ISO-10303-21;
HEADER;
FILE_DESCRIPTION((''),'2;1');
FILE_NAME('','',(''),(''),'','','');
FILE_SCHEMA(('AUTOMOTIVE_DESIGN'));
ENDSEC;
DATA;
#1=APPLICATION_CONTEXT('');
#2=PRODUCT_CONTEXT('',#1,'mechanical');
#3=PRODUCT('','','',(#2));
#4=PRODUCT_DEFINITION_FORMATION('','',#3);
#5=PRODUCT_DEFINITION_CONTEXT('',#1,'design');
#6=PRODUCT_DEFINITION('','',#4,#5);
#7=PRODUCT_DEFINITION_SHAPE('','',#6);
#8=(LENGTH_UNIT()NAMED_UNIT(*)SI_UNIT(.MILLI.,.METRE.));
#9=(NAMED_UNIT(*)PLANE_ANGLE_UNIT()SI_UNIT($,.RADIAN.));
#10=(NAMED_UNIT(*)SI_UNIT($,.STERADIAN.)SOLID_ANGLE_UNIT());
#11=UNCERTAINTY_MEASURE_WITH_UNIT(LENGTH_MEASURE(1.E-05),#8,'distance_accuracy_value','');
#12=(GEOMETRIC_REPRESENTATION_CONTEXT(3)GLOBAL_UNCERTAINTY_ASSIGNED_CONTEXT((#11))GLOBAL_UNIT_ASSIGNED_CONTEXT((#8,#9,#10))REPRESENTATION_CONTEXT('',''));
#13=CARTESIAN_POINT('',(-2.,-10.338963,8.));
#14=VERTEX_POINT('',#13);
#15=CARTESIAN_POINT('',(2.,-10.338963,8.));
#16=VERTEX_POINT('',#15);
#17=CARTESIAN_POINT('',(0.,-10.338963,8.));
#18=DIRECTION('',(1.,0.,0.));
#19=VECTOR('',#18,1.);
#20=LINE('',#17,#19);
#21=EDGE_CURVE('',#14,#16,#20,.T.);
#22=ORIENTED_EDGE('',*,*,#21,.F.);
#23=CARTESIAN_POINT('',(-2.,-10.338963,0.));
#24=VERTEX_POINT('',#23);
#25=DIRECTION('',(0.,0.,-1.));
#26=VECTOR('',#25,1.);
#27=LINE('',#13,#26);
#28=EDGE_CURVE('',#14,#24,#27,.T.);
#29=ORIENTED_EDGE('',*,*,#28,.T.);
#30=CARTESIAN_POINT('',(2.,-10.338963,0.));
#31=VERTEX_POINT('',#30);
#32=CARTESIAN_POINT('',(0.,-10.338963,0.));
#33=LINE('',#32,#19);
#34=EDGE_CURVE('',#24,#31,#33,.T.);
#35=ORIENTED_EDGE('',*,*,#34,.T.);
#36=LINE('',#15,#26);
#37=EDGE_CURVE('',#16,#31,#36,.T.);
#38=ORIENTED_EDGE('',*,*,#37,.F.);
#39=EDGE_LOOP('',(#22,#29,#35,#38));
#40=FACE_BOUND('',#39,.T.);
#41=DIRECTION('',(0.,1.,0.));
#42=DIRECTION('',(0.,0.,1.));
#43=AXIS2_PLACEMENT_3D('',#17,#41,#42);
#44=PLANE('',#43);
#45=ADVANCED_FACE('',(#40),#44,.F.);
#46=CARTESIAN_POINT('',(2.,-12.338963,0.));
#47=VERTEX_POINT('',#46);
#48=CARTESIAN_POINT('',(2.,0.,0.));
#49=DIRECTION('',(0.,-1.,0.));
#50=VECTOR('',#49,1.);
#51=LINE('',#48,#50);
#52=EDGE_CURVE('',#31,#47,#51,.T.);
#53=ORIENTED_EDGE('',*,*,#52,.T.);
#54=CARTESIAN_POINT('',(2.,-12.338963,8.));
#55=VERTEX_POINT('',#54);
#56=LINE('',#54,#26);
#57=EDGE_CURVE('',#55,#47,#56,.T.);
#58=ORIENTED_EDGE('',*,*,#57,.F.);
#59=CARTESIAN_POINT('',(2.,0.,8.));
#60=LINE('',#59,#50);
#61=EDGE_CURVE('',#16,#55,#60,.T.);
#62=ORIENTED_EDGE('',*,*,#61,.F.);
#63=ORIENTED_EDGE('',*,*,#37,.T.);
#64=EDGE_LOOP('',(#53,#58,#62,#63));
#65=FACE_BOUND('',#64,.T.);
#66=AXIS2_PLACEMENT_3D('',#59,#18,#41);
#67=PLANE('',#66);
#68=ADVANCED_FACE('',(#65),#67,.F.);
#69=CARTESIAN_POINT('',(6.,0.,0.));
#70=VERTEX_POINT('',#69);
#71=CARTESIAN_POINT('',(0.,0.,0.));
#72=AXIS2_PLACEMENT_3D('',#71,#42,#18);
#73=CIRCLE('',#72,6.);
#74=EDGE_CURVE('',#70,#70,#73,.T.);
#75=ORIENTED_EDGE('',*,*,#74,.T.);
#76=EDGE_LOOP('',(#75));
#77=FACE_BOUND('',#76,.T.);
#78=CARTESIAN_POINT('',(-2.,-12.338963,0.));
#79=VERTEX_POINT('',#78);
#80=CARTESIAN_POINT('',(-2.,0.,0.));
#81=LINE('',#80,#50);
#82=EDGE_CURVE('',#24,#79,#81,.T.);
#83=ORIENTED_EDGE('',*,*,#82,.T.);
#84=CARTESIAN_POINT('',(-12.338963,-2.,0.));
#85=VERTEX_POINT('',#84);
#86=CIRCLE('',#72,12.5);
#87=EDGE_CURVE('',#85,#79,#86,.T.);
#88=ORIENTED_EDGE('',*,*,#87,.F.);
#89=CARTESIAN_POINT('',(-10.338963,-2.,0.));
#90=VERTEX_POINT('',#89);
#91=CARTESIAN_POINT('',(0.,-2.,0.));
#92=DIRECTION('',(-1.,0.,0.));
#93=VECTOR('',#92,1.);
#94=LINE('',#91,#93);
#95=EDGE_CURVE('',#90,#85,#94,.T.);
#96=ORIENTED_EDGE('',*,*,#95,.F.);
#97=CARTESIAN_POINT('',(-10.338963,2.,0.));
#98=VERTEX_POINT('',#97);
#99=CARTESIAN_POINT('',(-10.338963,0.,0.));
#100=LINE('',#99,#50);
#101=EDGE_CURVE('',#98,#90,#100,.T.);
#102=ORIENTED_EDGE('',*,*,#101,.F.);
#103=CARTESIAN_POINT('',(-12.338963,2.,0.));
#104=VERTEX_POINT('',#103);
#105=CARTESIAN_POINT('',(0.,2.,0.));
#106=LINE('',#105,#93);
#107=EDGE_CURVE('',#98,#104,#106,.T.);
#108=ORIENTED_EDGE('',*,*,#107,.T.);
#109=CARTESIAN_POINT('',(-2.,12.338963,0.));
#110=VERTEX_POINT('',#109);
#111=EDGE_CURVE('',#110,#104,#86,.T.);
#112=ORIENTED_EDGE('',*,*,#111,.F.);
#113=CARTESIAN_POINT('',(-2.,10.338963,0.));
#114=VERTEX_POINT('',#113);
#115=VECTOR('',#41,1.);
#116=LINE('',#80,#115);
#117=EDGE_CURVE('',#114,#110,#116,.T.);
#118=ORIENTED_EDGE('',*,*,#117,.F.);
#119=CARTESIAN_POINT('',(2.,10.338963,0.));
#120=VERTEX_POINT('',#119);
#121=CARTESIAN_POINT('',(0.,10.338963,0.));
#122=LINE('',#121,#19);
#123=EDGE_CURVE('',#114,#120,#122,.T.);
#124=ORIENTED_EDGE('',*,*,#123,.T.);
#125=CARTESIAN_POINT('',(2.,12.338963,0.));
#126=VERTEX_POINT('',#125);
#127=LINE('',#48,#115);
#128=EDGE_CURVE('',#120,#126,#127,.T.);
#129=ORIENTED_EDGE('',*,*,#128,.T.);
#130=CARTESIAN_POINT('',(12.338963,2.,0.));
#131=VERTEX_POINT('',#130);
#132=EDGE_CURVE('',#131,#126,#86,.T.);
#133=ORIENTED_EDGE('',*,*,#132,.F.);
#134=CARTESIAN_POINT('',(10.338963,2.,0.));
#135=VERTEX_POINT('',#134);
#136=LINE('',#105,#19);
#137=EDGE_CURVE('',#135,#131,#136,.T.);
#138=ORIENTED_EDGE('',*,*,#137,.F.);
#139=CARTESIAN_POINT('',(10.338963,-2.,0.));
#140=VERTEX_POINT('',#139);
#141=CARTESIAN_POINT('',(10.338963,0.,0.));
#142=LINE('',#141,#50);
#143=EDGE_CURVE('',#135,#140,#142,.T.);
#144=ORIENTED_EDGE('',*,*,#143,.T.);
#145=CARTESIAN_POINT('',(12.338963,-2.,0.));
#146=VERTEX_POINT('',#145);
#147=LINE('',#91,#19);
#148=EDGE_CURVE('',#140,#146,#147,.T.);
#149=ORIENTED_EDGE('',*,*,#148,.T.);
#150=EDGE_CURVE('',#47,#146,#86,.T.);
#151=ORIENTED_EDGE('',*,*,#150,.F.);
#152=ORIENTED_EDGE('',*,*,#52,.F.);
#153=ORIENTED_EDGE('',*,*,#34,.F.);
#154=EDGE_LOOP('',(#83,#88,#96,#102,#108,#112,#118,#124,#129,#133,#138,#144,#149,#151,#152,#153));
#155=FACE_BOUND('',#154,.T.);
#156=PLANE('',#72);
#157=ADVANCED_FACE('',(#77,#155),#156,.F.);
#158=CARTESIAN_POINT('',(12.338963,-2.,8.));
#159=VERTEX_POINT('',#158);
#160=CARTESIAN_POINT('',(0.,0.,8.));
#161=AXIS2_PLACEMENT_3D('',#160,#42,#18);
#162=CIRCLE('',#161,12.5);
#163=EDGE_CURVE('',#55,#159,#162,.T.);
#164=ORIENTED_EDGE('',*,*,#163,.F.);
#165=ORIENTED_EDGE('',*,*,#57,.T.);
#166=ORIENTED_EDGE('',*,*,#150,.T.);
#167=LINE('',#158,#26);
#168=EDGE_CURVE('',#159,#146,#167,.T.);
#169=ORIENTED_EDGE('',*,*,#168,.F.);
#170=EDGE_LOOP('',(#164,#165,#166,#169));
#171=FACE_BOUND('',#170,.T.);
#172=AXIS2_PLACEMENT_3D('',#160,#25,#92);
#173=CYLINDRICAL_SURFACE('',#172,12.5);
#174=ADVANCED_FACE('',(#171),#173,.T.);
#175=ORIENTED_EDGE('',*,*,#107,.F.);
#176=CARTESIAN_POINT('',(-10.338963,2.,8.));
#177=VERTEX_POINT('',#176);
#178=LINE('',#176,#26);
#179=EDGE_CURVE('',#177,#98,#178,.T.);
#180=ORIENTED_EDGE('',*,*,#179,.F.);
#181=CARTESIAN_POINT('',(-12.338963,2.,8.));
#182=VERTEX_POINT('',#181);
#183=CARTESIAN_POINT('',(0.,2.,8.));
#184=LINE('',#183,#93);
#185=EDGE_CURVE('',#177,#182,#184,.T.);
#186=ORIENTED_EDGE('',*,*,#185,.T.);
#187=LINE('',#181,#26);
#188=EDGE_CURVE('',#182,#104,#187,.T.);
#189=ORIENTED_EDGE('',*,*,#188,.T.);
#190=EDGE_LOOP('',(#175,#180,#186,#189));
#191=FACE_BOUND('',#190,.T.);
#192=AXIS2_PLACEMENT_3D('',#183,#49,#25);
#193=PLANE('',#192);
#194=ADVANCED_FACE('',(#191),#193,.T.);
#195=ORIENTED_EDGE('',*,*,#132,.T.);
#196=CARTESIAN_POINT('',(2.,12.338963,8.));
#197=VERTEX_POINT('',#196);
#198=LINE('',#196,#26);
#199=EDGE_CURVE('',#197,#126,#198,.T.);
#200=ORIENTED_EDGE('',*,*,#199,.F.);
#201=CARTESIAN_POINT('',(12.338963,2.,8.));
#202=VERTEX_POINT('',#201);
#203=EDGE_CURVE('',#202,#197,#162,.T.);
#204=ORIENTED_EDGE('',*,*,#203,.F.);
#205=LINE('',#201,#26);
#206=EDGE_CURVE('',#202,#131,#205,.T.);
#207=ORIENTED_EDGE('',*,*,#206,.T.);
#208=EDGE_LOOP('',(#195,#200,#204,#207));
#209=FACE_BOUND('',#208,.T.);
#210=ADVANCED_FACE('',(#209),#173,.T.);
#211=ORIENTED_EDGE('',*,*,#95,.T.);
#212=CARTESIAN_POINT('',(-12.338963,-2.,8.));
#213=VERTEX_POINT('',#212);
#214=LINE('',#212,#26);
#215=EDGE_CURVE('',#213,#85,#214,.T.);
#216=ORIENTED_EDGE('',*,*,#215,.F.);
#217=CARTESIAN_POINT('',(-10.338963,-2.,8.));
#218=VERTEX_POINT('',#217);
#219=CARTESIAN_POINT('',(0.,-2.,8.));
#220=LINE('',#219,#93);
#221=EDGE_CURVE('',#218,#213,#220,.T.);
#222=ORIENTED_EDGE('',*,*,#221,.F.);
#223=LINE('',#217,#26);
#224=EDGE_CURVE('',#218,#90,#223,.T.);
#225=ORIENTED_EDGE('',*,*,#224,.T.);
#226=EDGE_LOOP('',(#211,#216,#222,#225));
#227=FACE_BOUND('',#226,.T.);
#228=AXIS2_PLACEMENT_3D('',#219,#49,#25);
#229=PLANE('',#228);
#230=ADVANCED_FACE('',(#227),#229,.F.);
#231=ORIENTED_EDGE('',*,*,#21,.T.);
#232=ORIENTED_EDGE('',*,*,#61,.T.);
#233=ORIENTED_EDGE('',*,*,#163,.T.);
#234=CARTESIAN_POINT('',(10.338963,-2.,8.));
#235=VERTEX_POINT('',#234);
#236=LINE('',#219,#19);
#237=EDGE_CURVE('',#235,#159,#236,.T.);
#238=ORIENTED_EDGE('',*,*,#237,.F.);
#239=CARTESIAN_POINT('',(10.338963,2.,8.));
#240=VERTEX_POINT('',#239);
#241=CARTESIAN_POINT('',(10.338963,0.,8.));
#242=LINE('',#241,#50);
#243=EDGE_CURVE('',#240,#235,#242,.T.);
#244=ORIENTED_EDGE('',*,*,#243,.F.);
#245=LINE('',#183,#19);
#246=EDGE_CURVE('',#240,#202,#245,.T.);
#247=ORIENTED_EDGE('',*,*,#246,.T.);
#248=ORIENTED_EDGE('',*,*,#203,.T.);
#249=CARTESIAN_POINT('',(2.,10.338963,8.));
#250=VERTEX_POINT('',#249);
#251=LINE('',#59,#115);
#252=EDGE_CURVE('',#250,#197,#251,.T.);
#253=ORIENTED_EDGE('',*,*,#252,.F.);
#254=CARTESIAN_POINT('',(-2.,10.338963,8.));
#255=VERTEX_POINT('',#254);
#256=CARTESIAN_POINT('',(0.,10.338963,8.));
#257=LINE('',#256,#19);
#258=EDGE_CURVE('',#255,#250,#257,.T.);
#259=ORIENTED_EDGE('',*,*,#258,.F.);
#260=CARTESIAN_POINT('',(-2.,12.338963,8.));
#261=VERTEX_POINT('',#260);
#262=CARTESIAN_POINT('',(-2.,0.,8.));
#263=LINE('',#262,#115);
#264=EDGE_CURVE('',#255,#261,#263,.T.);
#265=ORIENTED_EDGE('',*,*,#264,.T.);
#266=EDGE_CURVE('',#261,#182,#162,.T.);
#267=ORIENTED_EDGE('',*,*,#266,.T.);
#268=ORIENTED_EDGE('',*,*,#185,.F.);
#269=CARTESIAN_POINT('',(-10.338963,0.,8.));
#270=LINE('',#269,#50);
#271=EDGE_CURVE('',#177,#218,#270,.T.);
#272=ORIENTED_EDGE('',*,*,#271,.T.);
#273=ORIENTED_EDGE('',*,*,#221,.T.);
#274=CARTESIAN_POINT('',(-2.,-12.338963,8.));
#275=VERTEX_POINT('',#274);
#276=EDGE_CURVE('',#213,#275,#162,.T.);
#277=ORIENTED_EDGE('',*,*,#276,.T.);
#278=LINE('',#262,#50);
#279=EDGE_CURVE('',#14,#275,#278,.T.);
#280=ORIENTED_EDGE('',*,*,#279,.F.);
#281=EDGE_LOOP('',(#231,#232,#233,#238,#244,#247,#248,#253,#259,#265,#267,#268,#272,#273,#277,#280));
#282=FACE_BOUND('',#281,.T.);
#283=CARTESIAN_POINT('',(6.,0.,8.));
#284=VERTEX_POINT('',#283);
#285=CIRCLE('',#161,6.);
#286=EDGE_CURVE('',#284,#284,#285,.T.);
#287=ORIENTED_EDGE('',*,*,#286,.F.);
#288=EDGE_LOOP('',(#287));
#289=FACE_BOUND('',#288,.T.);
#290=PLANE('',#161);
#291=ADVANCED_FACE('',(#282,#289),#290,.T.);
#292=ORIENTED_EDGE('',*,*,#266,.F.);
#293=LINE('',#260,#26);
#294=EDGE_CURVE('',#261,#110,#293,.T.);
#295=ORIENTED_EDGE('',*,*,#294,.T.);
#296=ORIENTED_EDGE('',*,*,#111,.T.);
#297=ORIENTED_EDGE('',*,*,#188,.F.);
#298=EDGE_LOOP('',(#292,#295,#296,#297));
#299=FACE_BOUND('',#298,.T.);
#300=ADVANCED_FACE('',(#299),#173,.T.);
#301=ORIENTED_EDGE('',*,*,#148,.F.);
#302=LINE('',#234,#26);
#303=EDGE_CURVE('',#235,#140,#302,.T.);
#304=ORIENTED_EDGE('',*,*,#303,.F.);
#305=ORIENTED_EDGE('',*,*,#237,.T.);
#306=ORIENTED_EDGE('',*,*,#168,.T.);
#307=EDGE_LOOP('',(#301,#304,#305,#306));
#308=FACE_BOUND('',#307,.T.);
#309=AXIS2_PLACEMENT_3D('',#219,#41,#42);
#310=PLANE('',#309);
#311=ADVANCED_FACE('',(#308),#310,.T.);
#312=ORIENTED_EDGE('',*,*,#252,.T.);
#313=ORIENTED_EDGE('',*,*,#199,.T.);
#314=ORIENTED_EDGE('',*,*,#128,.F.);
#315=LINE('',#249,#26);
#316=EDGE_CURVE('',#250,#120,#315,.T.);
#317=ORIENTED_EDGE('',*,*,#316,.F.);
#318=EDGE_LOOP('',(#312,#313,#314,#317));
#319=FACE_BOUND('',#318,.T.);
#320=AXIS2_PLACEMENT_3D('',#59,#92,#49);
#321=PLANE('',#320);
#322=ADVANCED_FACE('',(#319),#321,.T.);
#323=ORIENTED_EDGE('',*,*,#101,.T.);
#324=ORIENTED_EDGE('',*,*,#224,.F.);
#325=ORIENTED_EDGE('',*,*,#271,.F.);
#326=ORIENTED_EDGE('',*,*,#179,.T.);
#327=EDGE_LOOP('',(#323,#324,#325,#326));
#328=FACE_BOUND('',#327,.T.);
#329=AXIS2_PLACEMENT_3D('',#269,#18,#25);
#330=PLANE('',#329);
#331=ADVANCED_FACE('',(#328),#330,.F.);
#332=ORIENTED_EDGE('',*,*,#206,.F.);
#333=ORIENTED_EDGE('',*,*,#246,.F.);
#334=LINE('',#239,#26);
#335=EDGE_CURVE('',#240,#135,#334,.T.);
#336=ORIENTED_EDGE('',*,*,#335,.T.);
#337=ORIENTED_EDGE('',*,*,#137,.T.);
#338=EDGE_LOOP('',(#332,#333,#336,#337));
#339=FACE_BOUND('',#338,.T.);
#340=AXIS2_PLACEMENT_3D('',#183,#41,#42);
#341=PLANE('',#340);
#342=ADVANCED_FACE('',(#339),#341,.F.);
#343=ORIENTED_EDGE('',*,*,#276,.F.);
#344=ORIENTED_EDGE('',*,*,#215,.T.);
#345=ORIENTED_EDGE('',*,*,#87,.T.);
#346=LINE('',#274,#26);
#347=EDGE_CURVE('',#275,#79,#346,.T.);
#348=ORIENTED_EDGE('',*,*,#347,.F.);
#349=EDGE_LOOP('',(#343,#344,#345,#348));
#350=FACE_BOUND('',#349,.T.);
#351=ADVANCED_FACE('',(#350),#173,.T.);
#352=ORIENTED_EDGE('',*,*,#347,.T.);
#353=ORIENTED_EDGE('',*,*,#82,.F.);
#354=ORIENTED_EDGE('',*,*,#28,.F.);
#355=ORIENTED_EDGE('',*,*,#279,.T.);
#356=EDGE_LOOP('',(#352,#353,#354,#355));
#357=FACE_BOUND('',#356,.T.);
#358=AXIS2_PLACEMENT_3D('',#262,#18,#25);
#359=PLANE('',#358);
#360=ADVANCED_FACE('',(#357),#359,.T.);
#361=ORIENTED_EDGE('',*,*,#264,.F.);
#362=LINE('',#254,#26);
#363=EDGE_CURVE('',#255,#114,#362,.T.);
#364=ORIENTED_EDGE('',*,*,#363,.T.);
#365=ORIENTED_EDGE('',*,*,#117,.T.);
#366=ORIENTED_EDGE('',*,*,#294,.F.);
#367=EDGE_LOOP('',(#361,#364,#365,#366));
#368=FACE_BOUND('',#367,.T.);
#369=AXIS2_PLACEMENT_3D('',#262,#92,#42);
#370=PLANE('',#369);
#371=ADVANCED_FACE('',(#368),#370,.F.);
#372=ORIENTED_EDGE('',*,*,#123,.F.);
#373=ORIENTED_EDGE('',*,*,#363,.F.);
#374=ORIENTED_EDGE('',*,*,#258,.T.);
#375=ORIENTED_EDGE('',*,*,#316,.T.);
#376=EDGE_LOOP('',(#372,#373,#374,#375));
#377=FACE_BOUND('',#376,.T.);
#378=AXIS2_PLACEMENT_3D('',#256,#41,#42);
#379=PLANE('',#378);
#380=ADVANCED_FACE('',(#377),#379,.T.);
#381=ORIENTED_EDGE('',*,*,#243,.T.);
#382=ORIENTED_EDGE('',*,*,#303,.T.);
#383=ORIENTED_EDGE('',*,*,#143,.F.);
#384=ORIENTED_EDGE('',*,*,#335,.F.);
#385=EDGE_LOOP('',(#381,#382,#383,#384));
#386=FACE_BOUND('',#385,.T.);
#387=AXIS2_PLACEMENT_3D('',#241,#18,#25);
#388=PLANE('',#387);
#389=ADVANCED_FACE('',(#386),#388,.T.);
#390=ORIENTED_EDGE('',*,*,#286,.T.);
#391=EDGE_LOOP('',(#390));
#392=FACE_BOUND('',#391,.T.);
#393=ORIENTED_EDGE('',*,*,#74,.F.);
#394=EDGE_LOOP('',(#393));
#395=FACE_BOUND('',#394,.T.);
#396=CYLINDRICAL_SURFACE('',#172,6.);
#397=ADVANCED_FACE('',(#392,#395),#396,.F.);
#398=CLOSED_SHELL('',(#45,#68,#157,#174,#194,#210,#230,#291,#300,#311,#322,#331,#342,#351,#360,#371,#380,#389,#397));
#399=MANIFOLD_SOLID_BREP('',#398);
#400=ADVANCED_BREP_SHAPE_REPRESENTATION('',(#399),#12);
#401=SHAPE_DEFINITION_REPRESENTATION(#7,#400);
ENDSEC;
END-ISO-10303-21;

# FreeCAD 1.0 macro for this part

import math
import FreeCAD as App
import Part
import Sketcher

V = App.Vector

doc = App.newDocument("Part")
body = doc.addObject("PartDesign::Body", "Body")

sketch1 = body.newObject("Sketcher::SketchObject", "Sketch")
sketch1.AttachmentSupport = (doc.getObject("XY_Plane"), [""])
sketch1.MapMode = "FlatFace"
sketch1.addGeometry(Part.LineSegment(V(2, 10.3, 0), V(-2, 10.3, 0)), False)
sketch1.addGeometry(Part.LineSegment(V(-2, 10.3, 0), V(-2, 12.3, 0)), False)
sketch1.addGeometry(Part.ArcOfCircle(Part.Circle(V(0, 0, 0), V(0, 0, 1), 12.5), math.radians(99), math.radians(171)), False)
sketch1.addGeometry(Part.LineSegment(V(-12.3, 2, 0), V(-10.3, 2, 0)), False)
sketch1.addGeometry(Part.LineSegment(V(-10.3, 2, 0), V(-10.3, -2, 0)), False)
sketch1.addGeometry(Part.LineSegment(V(-10.3, -2, 0), V(-12.3, -2, 0)), False)
sketch1.addGeometry(Part.ArcOfCircle(Part.Circle(V(0, 0, 0), V(0, 0, 1), 12.5), math.radians(-171), math.radians(-99)), False)
sketch1.addGeometry(Part.LineSegment(V(-2, -12.3, 0), V(-2, -10.3, 0)), False)
sketch1.addGeometry(Part.LineSegment(V(-2, -10.3, 0), V(2, -10.3, 0)), False)
sketch1.addGeometry(Part.LineSegment(V(2, -10.3, 0), V(2, -12.3, 0)), False)
sketch1.addGeometry(Part.ArcOfCircle(Part.Circle(V(0, 0, 0), V(0, 0, 1), 12.5), math.radians(-81), math.radians(-9)), False)
sketch1.addGeometry(Part.LineSegment(V(12.3, -2, 0), V(10.3, -2, 0)), False)
sketch1.addGeometry(Part.LineSegment(V(10.3, -2, 0), V(10.3, 2, 0)), False)
sketch1.addGeometry(Part.LineSegment(V(10.3, 2, 0), V(12.3, 2, 0)), False)
sketch1.addGeometry(Part.ArcOfCircle(Part.Circle(V(0, 0, 0), V(0, 0, 1), 12.5), math.radians(9), math.radians(81)), False)
sketch1.addGeometry(Part.LineSegment(V(2, 12.3, 0), V(2, 10.3, 0)), False)
sketch1.addGeometry(Part.Circle(V(0, 0, 0), V(0, 0, 1), 6), False)
sketch1.addConstraint(Sketcher.Constraint("Coincident", 0, 2, 1, 1))
sketch1.addConstraint(Sketcher.Constraint("Coincident", 1, 2, 2, 1))
sketch1.addConstraint(Sketcher.Constraint("Coincident", 2, 2, 3, 1))
sketch1.addConstraint(Sketcher.Constraint("Coincident", 3, 2, 4, 1))
sketch1.addConstraint(Sketcher.Constraint("Coincident", 4, 2, 5, 1))
sketch1.addConstraint(Sketcher.Constraint("Coincident", 5, 2, 6, 1))
sketch1.addConstraint(Sketcher.Constraint("Coincident", 6, 2, 7, 1))
sketch1.addConstraint(Sketcher.Constraint("Coincident", 7, 2, 8, 1))
sketch1.addConstraint(Sketcher.Constraint("Coincident", 8, 2, 9, 1))
sketch1.addConstraint(Sketcher.Constraint("Coincident", 9, 2, 10, 1))
sketch1.addConstraint(Sketcher.Constraint("Coincident", 10, 2, 11, 1))
sketch1.addConstraint(Sketcher.Constraint("Coincident", 11, 2, 12, 1))
sketch1.addConstraint(Sketcher.Constraint("Coincident", 12, 2, 13, 1))
sketch1.addConstraint(Sketcher.Constraint("Coincident", 13, 2, 14, 1))
sketch1.addConstraint(Sketcher.Constraint("Coincident", 14, 2, 15, 1))
sketch1.addConstraint(Sketcher.Constraint("Coincident", 15, 2, 0, 1))
sketch1.addConstraint(Sketcher.Constraint("Horizontal", 0))
sketch1.addConstraint(Sketcher.Constraint("Vertical", 1))
sketch1.addConstraint(Sketcher.Constraint("Horizontal", 3))
sketch1.addConstraint(Sketcher.Constraint("Vertical", 4))
sketch1.addConstraint(Sketcher.Constraint("Horizontal", 5))
sketch1.addConstraint(Sketcher.Constraint("Vertical", 7))
sketch1.addConstraint(Sketcher.Constraint("Horizontal", 8))
sketch1.addConstraint(Sketcher.Constraint("Vertical", 9))
sketch1.addConstraint(Sketcher.Constraint("Horizontal", 11))
sketch1.addConstraint(Sketcher.Constraint("Vertical", 12))
sketch1.addConstraint(Sketcher.Constraint("Horizontal", 13))
sketch1.addConstraint(Sketcher.Constraint("Vertical", 15))
sketch1.addConstraint(Sketcher.Constraint("Coincident", 2, 3, -1, 1))
sketch1.addConstraint(Sketcher.Constraint("Coincident", 6, 3, -1, 1))
sketch1.addConstraint(Sketcher.Constraint("Coincident", 10, 3, -1, 1))
sketch1.addConstraint(Sketcher.Constraint("Coincident", 14, 3, -1, 1))
sketch1.addConstraint(Sketcher.Constraint("Coincident", 16, 3, -1, 1))
sketch1.addConstraint(Sketcher.Constraint("Equal", 2, 6))
sketch1.addConstraint(Sketcher.Constraint("Equal", 6, 10))
sketch1.addConstraint(Sketcher.Constraint("Equal", 10, 14))
sketch1.addConstraint(Sketcher.Constraint("Symmetric", 0, 2, 8, 2, -1, 1))
sketch1.addConstraint(Sketcher.Constraint("Symmetric", 3, 2, 11, 2, -1, 1))
sketch1.addConstraint(Sketcher.Constraint("Horizontal", 6, 2, 9, 2))
sketch1.addConstraint(Sketcher.Constraint("Horizontal", 5, 2, 10, 2))
sketch1.addConstraint(Sketcher.Constraint("Horizontal", 3, 2, 12, 2))
sketch1.addConstraint(Sketcher.Constraint("Horizontal", 1, 2, 14, 2))
sketch1.addConstraint(Sketcher.Constraint("Equal", 13, 1))
sketch1.addConstraint(Sketcher.Constraint("Equal", 8, 4))
sketch1.addConstraint(Sketcher.Constraint("Diameter", 16, 12.0))
sketch1.addConstraint(Sketcher.Constraint("Radius", 2, 12.5))
sketch1.addConstraint(Sketcher.Constraint("DistanceX", 0, 2, 0, 1, 4.0))
sketch1.addConstraint(Sketcher.Constraint("DistanceX", 3, 1, 3, 2, 2.0))
pad1 = body.newObject("PartDesign::Pad", "Pad")
pad1.Profile = sketch1
pad1.Length = 8

doc.recompute()
